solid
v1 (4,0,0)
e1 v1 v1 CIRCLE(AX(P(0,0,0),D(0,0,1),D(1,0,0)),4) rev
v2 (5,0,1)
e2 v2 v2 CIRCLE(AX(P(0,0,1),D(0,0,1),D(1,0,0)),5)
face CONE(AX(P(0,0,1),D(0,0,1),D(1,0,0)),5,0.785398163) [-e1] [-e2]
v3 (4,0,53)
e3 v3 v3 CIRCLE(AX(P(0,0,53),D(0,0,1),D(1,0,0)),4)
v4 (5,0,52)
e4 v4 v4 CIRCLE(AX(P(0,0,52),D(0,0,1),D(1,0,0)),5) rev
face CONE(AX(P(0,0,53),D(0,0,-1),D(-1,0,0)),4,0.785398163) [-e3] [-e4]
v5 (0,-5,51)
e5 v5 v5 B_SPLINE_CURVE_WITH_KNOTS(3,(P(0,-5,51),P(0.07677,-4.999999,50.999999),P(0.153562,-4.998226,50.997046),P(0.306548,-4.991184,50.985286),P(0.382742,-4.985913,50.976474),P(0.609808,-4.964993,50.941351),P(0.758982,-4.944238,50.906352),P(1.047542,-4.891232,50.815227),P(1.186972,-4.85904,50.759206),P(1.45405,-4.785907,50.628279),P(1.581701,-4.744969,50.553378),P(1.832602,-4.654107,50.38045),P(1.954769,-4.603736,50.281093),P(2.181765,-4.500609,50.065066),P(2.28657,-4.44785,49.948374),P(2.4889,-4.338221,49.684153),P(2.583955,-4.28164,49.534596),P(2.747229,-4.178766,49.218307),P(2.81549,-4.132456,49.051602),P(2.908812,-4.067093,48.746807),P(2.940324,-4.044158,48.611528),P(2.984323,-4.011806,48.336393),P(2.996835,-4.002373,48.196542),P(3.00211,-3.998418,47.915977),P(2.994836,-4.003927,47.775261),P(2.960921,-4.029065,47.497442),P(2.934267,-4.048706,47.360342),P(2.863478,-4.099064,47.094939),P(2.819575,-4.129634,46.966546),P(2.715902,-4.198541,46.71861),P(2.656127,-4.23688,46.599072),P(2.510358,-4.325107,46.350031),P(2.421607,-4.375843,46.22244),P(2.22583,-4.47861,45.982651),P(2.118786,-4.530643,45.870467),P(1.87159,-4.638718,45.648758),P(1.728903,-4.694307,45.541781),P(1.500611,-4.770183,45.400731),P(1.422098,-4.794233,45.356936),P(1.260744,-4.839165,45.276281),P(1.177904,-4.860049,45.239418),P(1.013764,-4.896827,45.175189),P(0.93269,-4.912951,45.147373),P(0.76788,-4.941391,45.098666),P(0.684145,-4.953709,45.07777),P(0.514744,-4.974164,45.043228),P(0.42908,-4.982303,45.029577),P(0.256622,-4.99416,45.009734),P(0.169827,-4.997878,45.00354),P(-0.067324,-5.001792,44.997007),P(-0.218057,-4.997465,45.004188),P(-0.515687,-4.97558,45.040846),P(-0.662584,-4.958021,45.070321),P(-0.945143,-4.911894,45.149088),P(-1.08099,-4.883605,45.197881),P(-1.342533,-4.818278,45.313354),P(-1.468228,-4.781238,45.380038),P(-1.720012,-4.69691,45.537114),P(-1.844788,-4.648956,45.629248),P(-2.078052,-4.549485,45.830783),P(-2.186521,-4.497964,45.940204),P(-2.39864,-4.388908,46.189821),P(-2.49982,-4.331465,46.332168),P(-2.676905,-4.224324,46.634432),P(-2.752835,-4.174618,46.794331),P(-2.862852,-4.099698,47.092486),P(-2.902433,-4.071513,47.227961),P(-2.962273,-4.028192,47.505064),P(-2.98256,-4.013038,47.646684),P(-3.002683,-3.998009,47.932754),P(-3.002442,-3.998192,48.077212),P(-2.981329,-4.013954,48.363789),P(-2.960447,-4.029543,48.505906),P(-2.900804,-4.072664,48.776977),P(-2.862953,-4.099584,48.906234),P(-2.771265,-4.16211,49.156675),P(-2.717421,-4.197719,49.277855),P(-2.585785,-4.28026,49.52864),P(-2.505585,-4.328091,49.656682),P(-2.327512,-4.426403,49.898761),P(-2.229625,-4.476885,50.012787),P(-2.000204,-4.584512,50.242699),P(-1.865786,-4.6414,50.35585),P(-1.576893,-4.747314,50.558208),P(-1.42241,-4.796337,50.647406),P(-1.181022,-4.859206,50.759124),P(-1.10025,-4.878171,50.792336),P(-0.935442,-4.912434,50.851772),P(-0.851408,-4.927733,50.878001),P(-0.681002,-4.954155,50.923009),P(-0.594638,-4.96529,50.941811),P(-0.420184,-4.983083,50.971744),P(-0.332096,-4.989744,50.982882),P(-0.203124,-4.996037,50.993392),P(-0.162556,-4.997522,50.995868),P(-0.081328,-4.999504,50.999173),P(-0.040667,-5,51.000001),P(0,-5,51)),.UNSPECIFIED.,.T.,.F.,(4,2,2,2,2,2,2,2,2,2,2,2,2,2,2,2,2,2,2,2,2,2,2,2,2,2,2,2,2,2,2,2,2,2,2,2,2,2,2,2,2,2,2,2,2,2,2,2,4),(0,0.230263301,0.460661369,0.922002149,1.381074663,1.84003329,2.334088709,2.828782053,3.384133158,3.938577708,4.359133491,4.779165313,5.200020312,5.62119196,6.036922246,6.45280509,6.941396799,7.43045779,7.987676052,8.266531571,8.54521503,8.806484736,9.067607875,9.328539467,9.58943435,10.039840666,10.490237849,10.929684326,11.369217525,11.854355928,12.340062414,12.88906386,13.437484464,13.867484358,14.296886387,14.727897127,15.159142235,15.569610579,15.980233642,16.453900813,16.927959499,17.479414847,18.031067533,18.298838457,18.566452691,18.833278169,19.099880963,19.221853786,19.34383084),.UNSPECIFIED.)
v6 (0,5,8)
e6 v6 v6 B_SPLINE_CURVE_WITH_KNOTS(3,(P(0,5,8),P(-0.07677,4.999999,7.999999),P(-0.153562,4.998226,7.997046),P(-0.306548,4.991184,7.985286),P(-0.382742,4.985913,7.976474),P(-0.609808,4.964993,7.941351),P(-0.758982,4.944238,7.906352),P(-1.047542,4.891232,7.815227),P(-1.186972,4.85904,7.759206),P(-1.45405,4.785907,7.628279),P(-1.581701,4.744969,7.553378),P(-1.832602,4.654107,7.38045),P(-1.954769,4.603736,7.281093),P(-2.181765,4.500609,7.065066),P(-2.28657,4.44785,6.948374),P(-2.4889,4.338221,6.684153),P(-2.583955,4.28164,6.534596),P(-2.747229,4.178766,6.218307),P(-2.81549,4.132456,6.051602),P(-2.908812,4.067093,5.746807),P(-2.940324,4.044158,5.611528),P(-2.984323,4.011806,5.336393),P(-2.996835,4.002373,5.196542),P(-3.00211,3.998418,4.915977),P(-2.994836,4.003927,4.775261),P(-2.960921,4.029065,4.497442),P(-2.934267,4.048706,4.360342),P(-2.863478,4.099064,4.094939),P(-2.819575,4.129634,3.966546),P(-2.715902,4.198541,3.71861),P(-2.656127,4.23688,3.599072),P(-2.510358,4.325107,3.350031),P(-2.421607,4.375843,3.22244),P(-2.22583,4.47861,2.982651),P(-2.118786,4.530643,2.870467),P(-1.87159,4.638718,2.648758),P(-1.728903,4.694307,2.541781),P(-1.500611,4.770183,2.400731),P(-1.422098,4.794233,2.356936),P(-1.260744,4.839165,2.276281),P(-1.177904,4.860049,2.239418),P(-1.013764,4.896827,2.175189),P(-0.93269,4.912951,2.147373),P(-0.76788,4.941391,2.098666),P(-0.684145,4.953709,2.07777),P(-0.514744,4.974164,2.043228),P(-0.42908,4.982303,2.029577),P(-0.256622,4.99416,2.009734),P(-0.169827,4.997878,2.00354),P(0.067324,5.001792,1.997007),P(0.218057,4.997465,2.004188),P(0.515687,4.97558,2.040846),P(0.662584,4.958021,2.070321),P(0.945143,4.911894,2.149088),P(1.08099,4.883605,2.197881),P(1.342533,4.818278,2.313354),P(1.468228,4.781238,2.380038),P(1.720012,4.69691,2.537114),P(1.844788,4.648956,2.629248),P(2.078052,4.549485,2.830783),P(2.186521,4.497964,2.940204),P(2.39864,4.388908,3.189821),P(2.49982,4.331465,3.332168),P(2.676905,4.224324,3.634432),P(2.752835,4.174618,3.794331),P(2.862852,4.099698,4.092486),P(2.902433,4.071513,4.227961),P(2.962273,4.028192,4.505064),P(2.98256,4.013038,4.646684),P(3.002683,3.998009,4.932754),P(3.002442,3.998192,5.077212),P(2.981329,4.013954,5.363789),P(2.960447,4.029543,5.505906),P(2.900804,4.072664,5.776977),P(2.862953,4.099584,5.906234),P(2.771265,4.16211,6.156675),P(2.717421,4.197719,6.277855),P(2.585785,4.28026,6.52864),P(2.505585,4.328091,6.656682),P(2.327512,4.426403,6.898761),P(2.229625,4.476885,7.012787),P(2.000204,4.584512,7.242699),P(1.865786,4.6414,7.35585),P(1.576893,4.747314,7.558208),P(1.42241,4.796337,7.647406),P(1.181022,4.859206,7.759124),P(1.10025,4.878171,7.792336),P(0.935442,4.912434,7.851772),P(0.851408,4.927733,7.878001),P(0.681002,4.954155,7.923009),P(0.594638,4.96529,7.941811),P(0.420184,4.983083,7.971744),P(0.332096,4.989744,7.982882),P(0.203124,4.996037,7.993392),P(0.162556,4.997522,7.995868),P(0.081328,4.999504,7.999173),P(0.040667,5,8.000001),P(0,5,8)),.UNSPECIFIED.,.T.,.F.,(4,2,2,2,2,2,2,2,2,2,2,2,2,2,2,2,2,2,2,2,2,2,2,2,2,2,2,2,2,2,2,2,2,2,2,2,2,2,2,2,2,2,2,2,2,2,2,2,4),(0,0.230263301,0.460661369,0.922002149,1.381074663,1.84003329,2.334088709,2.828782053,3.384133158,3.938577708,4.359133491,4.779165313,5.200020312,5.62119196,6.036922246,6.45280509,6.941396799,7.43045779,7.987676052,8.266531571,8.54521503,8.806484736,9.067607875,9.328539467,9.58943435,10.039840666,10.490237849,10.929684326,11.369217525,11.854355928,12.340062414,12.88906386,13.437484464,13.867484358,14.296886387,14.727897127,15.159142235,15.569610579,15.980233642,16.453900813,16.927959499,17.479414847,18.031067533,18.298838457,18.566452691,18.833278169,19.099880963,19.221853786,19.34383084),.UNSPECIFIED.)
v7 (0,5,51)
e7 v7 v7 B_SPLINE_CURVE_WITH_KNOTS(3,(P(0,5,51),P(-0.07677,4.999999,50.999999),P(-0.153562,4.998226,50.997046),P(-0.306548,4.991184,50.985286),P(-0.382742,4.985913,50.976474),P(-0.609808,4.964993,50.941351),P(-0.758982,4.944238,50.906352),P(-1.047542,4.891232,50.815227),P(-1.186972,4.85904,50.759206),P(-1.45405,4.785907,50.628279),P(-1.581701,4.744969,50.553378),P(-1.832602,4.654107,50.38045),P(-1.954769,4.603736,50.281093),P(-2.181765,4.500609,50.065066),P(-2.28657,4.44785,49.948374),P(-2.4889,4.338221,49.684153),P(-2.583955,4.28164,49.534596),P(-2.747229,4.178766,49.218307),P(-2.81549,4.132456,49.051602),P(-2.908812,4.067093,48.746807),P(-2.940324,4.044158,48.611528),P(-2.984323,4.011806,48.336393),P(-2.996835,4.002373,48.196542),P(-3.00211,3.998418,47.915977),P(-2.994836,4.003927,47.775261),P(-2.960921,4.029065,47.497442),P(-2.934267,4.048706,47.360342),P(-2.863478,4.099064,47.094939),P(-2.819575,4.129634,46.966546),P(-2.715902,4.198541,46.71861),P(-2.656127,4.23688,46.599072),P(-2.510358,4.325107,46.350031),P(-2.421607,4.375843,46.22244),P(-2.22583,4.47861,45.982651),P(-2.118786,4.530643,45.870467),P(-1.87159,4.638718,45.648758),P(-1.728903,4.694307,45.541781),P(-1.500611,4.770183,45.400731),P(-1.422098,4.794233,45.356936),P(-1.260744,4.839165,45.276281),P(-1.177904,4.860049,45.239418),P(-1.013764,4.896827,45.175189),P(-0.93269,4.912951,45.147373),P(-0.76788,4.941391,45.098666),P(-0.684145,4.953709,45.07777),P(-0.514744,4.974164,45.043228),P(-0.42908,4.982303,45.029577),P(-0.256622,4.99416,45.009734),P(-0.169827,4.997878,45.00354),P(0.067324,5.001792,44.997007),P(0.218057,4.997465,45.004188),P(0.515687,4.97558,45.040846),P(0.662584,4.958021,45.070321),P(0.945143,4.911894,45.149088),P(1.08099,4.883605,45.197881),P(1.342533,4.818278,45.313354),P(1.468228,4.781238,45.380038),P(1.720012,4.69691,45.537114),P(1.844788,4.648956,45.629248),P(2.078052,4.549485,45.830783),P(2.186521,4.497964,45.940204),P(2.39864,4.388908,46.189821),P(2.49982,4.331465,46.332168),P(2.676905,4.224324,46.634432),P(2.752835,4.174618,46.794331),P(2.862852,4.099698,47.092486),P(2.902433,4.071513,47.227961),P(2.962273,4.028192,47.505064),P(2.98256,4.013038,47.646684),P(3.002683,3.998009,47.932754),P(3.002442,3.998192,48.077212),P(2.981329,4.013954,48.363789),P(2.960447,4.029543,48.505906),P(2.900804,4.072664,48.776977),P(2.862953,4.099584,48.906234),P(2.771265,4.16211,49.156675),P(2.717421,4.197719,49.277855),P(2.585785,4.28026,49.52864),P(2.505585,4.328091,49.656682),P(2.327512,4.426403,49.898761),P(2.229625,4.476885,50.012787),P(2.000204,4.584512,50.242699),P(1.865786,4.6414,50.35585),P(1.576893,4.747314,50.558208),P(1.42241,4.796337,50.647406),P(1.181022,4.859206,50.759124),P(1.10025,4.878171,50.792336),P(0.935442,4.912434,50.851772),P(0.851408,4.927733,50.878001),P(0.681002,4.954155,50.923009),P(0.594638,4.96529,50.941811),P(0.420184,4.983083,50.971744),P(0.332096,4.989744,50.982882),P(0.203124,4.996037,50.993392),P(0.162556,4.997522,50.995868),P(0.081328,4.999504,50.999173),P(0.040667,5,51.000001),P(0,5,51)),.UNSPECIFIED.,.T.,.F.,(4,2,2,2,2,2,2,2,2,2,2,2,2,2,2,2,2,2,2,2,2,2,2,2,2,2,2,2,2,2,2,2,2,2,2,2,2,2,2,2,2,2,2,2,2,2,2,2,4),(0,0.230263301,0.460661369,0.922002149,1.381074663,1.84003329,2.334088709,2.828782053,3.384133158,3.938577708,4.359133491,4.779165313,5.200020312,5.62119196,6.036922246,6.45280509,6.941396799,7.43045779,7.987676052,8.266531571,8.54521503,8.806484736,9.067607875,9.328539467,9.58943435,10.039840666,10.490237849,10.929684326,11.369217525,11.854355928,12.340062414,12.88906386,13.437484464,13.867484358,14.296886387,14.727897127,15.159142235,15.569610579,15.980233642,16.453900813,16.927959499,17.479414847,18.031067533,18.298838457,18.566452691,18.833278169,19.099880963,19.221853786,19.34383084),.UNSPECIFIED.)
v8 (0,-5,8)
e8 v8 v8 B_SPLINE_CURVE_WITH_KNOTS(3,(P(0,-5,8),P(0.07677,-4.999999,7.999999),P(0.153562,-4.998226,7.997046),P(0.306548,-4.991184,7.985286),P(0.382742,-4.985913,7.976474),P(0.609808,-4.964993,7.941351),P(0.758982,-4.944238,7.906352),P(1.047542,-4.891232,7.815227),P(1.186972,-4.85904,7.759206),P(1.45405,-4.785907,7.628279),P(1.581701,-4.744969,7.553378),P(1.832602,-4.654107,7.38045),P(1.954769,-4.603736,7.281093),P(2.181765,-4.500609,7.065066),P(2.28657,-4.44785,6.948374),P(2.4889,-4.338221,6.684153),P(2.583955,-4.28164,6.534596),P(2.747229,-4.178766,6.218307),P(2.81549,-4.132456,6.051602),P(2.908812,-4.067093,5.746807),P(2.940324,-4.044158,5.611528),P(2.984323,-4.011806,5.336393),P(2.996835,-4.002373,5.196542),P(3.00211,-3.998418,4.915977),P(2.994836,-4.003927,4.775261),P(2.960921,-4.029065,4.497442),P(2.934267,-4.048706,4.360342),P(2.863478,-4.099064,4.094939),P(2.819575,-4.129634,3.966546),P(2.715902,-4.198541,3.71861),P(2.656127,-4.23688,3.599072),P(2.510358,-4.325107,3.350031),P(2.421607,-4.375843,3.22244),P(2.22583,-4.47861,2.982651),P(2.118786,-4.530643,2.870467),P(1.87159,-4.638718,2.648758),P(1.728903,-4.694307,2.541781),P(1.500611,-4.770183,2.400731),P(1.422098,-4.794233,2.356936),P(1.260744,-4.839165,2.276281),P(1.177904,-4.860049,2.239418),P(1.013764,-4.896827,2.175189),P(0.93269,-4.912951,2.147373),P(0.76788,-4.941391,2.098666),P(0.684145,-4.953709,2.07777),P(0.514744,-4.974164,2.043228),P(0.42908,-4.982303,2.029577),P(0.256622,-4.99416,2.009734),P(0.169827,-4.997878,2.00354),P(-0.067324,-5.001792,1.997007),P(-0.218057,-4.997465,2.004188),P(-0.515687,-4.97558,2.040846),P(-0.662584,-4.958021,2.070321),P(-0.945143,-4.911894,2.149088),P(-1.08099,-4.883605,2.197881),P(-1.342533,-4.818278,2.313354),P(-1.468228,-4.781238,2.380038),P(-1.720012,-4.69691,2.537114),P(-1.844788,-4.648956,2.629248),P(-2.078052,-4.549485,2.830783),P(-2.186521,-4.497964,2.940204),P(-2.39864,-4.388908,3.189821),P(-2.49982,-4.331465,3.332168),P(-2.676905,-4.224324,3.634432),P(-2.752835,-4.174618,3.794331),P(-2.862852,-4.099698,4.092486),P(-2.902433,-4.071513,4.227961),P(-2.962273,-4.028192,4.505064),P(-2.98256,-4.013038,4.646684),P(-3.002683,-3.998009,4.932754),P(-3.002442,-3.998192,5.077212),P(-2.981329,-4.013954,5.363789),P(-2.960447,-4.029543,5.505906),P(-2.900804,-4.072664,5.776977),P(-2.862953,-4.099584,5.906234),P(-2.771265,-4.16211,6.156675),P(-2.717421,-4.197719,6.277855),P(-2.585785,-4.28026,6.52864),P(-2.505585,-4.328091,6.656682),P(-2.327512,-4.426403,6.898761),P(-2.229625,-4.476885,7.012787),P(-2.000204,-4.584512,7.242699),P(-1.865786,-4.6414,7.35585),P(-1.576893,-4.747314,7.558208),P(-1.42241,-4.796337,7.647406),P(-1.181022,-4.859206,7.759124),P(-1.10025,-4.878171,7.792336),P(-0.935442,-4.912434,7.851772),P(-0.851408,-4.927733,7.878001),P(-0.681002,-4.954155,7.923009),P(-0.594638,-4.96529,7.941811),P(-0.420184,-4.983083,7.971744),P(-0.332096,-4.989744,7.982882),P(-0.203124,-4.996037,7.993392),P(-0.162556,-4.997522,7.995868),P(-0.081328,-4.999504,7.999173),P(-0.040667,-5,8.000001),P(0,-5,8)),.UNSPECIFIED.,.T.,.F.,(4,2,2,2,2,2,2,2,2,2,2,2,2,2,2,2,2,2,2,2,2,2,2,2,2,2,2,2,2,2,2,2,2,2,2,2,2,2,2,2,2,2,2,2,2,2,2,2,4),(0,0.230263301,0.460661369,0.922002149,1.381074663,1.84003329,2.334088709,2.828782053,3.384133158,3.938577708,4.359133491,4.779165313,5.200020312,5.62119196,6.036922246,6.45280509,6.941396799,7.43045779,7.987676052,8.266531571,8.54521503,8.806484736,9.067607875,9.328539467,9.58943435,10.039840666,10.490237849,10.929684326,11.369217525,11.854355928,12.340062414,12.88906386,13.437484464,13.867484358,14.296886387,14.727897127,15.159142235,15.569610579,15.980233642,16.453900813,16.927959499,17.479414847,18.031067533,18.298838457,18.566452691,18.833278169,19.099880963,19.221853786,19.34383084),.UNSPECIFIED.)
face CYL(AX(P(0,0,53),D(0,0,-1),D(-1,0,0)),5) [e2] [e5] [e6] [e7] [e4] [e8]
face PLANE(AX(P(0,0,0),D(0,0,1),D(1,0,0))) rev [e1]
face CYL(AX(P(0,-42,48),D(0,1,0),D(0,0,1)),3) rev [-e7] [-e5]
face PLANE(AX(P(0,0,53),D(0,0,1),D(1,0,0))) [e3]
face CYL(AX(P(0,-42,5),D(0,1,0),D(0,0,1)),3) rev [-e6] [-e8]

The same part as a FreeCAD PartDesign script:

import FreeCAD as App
import Part
import Sketcher


def edges_at(feature, points):
    """Names of the edges that pass closest to the given points."""
    edges = feature.Shape.Edges
    near = lambda p: min(range(len(edges)), key=lambda i: edges[i].distToShape(Part.Vertex(*p))[0])
    return sorted({f"Edge{near(p) + 1}" for p in points})

doc = App.newDocument("Part")
params = doc.addObject("Spreadsheet::Sheet", "Params")
for row, (alias, value) in enumerate([
    ("sketch1_diameter", "10 mm"),
    ("pad1_length", "53 mm"),
    ("sketch2_diameter", "6 mm"),
    ("pocket1_length", "47 mm"),
    ("chamfer_size", "1 mm"),
], start=1):
    params.set(f"A{row}", alias)
    params.set(f"B{row}", "=" + value)
    params.setAlias(f"B{row}", alias)

body = doc.addObject("PartDesign::Body", "Body")

# Sketch on XY plane
sketch1 = body.newObject("Sketcher::SketchObject", "Sketch")
sketch1.AttachmentSupport = (doc.getObject("XY_Plane"), [""])
sketch1.MapMode = "FlatFace"
sketch1.addGeometry(Part.Circle(App.Vector(0, 0, 0), App.Vector(0, 0, 1), 5), False)
sketch1.addConstraint([
    Sketcher.Constraint("Coincident", 0, 3, -1, 1),
    Sketcher.Constraint("Diameter", 0, 10.0),
])
sketch1.setExpression("Constraints[1]", "Params.sketch1_diameter")
pad1 = body.newObject("PartDesign::Pad", "Pad")
pad1.Profile = sketch1
pad1.setExpression("Length", "Params.pad1_length")

# Sketch on XZ plane
sketch2 = body.newObject("Sketcher::SketchObject", "Sketch001")
sketch2.AttachmentSupport = (doc.getObject("XZ_Plane"), [""])
sketch2.MapMode = "FlatFace"
sketch2.AttachmentOffset = App.Placement(App.Vector(0, 0, -5), App.Rotation())
sketch2.addGeometry([
    Part.Circle(App.Vector(0, 5, 0), App.Vector(0, 0, 1), 3),
    Part.Circle(App.Vector(0, 48, 0), App.Vector(0, 0, 1), 3),
], False)
sketch2.addConstraint([
    Sketcher.Constraint("Equal", 0, 1),
    Sketcher.Constraint("PointOnObject", 0, 3, -2),
    Sketcher.Constraint("PointOnObject", 1, 3, -2),
    Sketcher.Constraint("Diameter", 0, 6.0),
    Sketcher.Constraint("DistanceY", -1, 1, 0, 3, 5.0),
    Sketcher.Constraint("DistanceY", -1, 1, 1, 3, 48.0),
])
sketch2.setExpression("Constraints[3]", "Params.sketch2_diameter")
pocket1 = body.newObject("PartDesign::Pocket", "Pocket")
pocket1.Profile = sketch2
pocket1.setExpression("Length", "Params.pocket1_length")
pocket1.Reversed = True
doc.recompute()

chamfer = body.newObject("PartDesign::Chamfer", "Chamfer")
chamfer.Base = (pocket1, edges_at(pocket1, [(-5, 0, 0), (-5, 0, 53)]))
chamfer.setExpression("Size", "Params.chamfer_size")

doc.recompute()
